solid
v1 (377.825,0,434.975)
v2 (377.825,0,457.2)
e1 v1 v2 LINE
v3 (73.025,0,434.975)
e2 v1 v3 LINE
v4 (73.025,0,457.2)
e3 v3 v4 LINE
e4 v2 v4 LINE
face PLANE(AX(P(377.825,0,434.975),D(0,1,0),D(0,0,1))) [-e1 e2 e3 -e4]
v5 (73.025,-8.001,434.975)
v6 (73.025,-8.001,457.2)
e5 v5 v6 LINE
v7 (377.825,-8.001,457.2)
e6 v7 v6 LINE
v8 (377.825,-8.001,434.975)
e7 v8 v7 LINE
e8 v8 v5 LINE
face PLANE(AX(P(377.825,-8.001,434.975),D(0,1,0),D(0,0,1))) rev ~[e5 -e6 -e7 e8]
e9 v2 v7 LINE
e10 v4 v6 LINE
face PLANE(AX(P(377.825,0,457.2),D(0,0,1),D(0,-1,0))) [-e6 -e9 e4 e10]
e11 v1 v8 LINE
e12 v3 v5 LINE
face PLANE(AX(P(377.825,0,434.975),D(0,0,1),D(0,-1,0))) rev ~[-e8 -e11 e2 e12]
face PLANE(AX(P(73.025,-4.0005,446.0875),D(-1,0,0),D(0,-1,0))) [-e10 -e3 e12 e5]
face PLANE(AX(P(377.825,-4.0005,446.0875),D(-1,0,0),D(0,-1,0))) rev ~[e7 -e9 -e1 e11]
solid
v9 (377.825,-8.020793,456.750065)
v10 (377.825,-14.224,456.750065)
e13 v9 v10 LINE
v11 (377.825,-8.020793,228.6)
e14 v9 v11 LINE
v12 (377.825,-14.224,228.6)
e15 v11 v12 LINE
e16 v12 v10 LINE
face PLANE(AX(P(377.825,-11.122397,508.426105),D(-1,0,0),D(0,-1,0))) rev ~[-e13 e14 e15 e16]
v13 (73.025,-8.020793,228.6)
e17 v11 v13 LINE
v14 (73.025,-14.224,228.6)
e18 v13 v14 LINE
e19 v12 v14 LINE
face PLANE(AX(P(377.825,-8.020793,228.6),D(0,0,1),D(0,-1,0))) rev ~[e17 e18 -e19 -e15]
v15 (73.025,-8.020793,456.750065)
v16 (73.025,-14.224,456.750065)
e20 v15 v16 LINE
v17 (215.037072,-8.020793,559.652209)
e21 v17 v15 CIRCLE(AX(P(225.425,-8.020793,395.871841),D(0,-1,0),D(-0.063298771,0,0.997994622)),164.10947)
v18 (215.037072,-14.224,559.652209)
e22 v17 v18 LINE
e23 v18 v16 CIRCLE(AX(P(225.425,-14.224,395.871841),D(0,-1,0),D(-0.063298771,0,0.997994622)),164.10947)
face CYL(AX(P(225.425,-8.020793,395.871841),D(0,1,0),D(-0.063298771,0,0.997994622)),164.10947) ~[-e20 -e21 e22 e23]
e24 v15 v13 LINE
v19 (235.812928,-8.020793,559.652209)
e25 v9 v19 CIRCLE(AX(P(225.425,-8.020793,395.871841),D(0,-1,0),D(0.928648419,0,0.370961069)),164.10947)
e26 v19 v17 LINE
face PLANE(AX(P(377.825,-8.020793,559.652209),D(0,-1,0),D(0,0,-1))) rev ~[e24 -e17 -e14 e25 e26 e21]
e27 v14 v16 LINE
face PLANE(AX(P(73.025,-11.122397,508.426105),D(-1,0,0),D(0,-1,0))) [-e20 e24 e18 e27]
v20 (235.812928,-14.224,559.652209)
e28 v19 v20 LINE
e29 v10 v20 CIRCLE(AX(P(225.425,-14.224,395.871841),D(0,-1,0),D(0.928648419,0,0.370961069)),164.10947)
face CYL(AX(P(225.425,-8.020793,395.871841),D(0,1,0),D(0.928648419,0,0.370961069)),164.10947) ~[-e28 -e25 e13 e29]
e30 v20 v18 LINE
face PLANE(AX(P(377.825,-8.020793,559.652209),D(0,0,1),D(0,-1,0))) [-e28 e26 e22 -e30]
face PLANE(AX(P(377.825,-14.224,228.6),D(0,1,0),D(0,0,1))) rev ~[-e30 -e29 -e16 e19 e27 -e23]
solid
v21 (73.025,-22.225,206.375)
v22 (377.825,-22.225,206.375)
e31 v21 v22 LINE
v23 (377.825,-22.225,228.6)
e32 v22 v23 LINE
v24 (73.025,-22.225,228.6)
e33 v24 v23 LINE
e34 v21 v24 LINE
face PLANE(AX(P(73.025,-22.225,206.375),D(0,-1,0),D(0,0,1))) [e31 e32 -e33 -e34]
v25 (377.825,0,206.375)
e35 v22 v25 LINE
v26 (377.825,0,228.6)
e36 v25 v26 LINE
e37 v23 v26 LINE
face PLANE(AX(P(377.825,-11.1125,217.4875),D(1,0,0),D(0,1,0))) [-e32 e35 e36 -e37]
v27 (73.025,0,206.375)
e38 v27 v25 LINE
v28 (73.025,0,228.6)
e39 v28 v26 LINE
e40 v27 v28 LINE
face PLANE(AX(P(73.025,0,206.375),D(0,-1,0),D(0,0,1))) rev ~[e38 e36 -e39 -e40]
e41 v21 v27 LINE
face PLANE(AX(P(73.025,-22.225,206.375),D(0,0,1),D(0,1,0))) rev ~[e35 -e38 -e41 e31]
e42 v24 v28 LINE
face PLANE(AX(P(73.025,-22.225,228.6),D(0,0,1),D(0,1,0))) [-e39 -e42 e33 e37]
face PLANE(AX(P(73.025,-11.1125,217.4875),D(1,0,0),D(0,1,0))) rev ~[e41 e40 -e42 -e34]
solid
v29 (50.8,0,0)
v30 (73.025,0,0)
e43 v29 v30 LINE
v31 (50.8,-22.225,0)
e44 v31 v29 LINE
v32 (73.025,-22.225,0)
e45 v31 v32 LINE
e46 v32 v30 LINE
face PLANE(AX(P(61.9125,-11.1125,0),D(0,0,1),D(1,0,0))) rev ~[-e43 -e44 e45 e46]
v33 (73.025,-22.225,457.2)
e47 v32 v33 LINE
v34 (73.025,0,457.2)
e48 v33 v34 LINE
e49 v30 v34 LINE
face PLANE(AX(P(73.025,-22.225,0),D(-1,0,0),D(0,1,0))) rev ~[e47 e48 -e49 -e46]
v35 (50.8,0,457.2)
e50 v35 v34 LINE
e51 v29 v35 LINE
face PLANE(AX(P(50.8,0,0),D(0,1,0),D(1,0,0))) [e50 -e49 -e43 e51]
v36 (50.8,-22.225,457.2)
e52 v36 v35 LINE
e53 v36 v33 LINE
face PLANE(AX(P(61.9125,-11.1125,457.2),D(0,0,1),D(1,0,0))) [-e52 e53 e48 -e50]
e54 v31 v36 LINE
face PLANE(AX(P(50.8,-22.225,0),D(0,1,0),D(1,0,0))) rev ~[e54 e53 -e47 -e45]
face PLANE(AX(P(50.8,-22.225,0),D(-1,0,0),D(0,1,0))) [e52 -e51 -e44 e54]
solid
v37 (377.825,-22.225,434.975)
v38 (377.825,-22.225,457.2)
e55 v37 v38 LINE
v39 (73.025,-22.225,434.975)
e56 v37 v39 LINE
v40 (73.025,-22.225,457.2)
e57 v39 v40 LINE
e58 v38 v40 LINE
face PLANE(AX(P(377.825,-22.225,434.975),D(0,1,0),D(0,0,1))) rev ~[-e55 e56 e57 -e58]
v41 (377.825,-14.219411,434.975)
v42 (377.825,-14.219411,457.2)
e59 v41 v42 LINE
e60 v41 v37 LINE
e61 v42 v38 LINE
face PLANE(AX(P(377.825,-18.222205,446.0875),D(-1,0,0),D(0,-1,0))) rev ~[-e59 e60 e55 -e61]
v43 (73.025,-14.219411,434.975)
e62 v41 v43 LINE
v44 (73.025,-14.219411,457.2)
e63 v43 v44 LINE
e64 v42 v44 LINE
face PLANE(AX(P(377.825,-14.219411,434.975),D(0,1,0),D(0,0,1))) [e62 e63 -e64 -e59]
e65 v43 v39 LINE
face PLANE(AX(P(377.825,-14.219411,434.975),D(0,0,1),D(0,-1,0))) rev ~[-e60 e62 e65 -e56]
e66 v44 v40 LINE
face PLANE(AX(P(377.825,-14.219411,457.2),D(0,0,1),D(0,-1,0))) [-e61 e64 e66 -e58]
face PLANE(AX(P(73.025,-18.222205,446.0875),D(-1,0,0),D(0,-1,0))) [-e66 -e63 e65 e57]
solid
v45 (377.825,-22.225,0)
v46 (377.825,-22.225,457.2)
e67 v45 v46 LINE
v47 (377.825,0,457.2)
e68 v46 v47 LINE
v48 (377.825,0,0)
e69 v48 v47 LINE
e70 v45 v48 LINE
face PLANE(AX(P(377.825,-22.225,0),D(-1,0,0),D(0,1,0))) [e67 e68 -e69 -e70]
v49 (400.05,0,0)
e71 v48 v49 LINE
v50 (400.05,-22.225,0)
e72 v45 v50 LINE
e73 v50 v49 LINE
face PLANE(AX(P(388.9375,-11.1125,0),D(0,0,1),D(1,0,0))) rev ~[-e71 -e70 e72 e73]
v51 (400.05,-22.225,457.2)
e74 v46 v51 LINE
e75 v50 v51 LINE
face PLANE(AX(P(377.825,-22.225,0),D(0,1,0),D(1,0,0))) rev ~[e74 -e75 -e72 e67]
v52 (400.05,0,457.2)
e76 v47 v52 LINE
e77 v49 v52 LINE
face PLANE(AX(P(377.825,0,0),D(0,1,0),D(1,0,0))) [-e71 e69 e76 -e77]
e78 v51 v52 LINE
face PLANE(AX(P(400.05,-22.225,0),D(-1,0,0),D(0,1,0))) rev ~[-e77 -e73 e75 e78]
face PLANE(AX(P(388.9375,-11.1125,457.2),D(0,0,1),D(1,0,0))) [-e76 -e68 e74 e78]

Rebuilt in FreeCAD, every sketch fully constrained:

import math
import FreeCAD as App
import Part
import Sketcher
Q = App.Units.Quantity

doc = App.newDocument("Part")
params = doc.addObject("Spreadsheet::Sheet", "Params")
for row, (alias, value) in enumerate([
    ("sketch1_width", "0.875 in"),
    ("pad1_length", "18 in"),
    ("sketch2_width", "0.875 in"),
    ("pad2_length", "18 in"),
    ("sketch3_width", "0.875 in"),
    ("pad3_length", "12 in"),
    ("pad4_length", "12 in"),
    ("sketch6_height", "0.875 in"),
    ("pad5_length", "12 in"),
    ("sketch7_width", "0.315 in"),
    ("sketch7_height", "0.875 in"),
    ("pad6_length", "12 in"),
], start=1):
    params.set(f"A{row}", alias)
    params.set(f"B{row}", "=" + value)
    params.setAlias(f"B{row}", alias)

body = doc.addObject("PartDesign::Body", "Body")

sketch1 = body.newObject("Sketcher::SketchObject", "Sketch")
sketch1.AttachmentSupport = (doc.getObject("XY_Plane"), [""])
sketch1.MapMode = "FlatFace"
sketch1.addGeometry(Part.LineSegment(App.Vector(51, 0, 0), App.Vector(51, -22, 0)), False)
sketch1.addGeometry(Part.LineSegment(App.Vector(51, -22, 0), App.Vector(73, -22, 0)), False)
sketch1.addGeometry(Part.LineSegment(App.Vector(73, -22, 0), App.Vector(73, 0, 0)), False)
sketch1.addGeometry(Part.LineSegment(App.Vector(73, 0, 0), App.Vector(51, 0, 0)), False)
sketch1.addConstraint(Sketcher.Constraint("Coincident", 0, 2, 1, 1))
sketch1.addConstraint(Sketcher.Constraint("Coincident", 1, 2, 2, 1))
sketch1.addConstraint(Sketcher.Constraint("Coincident", 2, 2, 3, 1))
sketch1.addConstraint(Sketcher.Constraint("Coincident", 3, 2, 0, 1))
sketch1.addConstraint(Sketcher.Constraint("Vertical", 0))
sketch1.addConstraint(Sketcher.Constraint("Horizontal", 1))
sketch1.addConstraint(Sketcher.Constraint("Vertical", 2))
sketch1.addConstraint(Sketcher.Constraint("Horizontal", 3))
sketch1.addConstraint(Sketcher.Constraint("PointOnObject", 2, 2, -1))
sketch1.addConstraint(Sketcher.Constraint("Equal", 3, 0))
sketch1.addConstraint(Sketcher.Constraint("DistanceX", -1, 1, 0, 2, Q("2 in")))
sketch1.addConstraint(Sketcher.Constraint("DistanceX", 1, 1, 1, 2, Q("0.875 in")))
sketch1.setExpression("Constraints[11]", "Params.sketch1_width")
pad1 = body.newObject("PartDesign::Pad", "Pad")
pad1.Profile = sketch1
pad1.setExpression("Length", "Params.pad1_length")
body2 = doc.addObject("PartDesign::Body", "Body001")

sketch2 = body2.newObject("Sketcher::SketchObject", "Sketch001")
sketch2.AttachmentSupport = (doc.getObject("XY_Plane001"), [""])
sketch2.MapMode = "FlatFace"
sketch2.addGeometry(Part.LineSegment(App.Vector(378, 0, 0), App.Vector(378, -22, 0)), False)
sketch2.addGeometry(Part.LineSegment(App.Vector(378, -22, 0), App.Vector(400, -22, 0)), False)
sketch2.addGeometry(Part.LineSegment(App.Vector(400, -22, 0), App.Vector(400, 0, 0)), False)
sketch2.addGeometry(Part.LineSegment(App.Vector(400, 0, 0), App.Vector(378, 0, 0)), False)
sketch2.addConstraint(Sketcher.Constraint("Coincident", 0, 2, 1, 1))
sketch2.addConstraint(Sketcher.Constraint("Coincident", 1, 2, 2, 1))
sketch2.addConstraint(Sketcher.Constraint("Coincident", 2, 2, 3, 1))
sketch2.addConstraint(Sketcher.Constraint("Coincident", 3, 2, 0, 1))
sketch2.addConstraint(Sketcher.Constraint("Vertical", 0))
sketch2.addConstraint(Sketcher.Constraint("Horizontal", 1))
sketch2.addConstraint(Sketcher.Constraint("Vertical", 2))
sketch2.addConstraint(Sketcher.Constraint("Horizontal", 3))
sketch2.addConstraint(Sketcher.Constraint("PointOnObject", 2, 2, -1))
sketch2.addConstraint(Sketcher.Constraint("Equal", 3, 0))
sketch2.addConstraint(Sketcher.Constraint("DistanceX", 1, 1, 1, 2, Q("0.875 in")))
sketch2.addConstraint(Sketcher.Constraint("DistanceX", -1, 1, 1, 2, Q("15.75 in")))
sketch2.setExpression("Constraints[10]", "Params.sketch2_width")
pad2 = body2.newObject("PartDesign::Pad", "Pad001")
pad2.Profile = sketch2
pad2.setExpression("Length", "Params.pad2_length")
body3 = doc.addObject("PartDesign::Body", "Body002")

sketch3 = body3.newObject("Sketcher::SketchObject", "Sketch002")
sketch3.AttachmentSupport = (doc.getObject("YZ_Plane002"), [""])
sketch3.MapMode = "FlatFace"
sketch3.AttachmentOffset = App.Placement(App.Vector(0, 0, 2.875 * 25.4), App.Rotation())
sketch3.addGeometry(Part.LineSegment(App.Vector(-22, 229, 0), App.Vector(-22, 206, 0)), False)
sketch3.addGeometry(Part.LineSegment(App.Vector(-22, 206, 0), App.Vector(0, 206, 0)), False)
sketch3.addGeometry(Part.LineSegment(App.Vector(0, 206, 0), App.Vector(0, 229, 0)), False)
sketch3.addGeometry(Part.LineSegment(App.Vector(0, 229, 0), App.Vector(-22, 229, 0)), False)
sketch3.addConstraint(Sketcher.Constraint("Coincident", 0, 2, 1, 1))
sketch3.addConstraint(Sketcher.Constraint("Coincident", 1, 2, 2, 1))
sketch3.addConstraint(Sketcher.Constraint("Coincident", 2, 2, 3, 1))
sketch3.addConstraint(Sketcher.Constraint("Coincident", 3, 2, 0, 1))
sketch3.addConstraint(Sketcher.Constraint("Vertical", 0))
sketch3.addConstraint(Sketcher.Constraint("Horizontal", 1))
sketch3.addConstraint(Sketcher.Constraint("Vertical", 2))
sketch3.addConstraint(Sketcher.Constraint("Horizontal", 3))
sketch3.addConstraint(Sketcher.Constraint("PointOnObject", 1, 2, -2))
sketch3.addConstraint(Sketcher.Constraint("Equal", 3, 0))
sketch3.addConstraint(Sketcher.Constraint("DistanceY", -1, 1, 2, 2, Q("9 in")))
sketch3.addConstraint(Sketcher.Constraint("DistanceX", 1, 1, 1, 2, Q("0.875 in")))
sketch3.setExpression("Constraints[11]", "Params.sketch3_width")
pad3 = body3.newObject("PartDesign::Pad", "Pad002")
pad3.Profile = sketch3
pad3.setExpression("Length", "Params.pad3_length")
body4 = doc.addObject("PartDesign::Body", "Body003")

sketch4 = body4.newObject("Sketcher::SketchObject", "Sketch003")
sketch4.AttachmentSupport = (doc.getObject("YZ_Plane003"), [""])
sketch4.MapMode = "FlatFace"
sketch4.AttachmentOffset = App.Placement(App.Vector(0, 0, 14.875 * 25.4), App.Rotation())
sketch4.addGeometry(Part.LineSegment(App.Vector(-8, 560, 0), App.Vector(-8, 229, 0)), False)
sketch4.addGeometry(Part.LineSegment(App.Vector(-8, 229, 0), App.Vector(-14, 229, 0)), False)
sketch4.addGeometry(Part.LineSegment(App.Vector(-14, 229, 0), App.Vector(-14, 560, 0)), False)
sketch4.addGeometry(Part.LineSegment(App.Vector(-14, 560, 0), App.Vector(-8, 560, 0)), False)
sketch4.addConstraint(Sketcher.Constraint("Coincident", 0, 2, 1, 1))
sketch4.addConstraint(Sketcher.Constraint("Coincident", 1, 2, 2, 1))
sketch4.addConstraint(Sketcher.Constraint("Coincident", 2, 2, 3, 1))
sketch4.addConstraint(Sketcher.Constraint("Coincident", 3, 2, 0, 1))
sketch4.addConstraint(Sketcher.Constraint("Vertical", 0))
sketch4.addConstraint(Sketcher.Constraint("Horizontal", 1))
sketch4.addConstraint(Sketcher.Constraint("Vertical", 2))
sketch4.addConstraint(Sketcher.Constraint("Horizontal", 3))
sketch4.addConstraint(Sketcher.Constraint("DistanceY", -1, 1, 0, 2, Q("9 in")))
sketch4.addConstraint(Sketcher.Constraint("DistanceX", 1, 2, -1, 1, Q("0.56 in")))
sketch4.addConstraint(Sketcher.Constraint("DistanceY", 0, 2, 0, 1, 331.052209))
sketch4.addConstraint(Sketcher.Constraint("DistanceX", 1, 2, 1, 1, 6.203207))
pad4 = body4.newObject("PartDesign::Pad", "Pad003")
pad4.Profile = sketch4
pad4.setExpression("Length", "Params.pad4_length")
pad4.Reversed = True

sketch5 = body4.newObject("Sketcher::SketchObject", "Sketch004")
sketch5.AttachmentSupport = (doc.getObject("XZ_Plane003"), [""])
sketch5.MapMode = "FlatFace"
sketch5.AttachmentOffset = App.Placement(App.Vector(0, 0, 8.020793), App.Rotation())
sketch5.addGeometry(Part.ArcOfCircle(Part.Circle(App.Vector(225, 396, 0), App.Vector(0, 0, 1), 164), math.radians(22), math.radians(86)), False)
sketch5.addGeometry(Part.LineSegment(App.Vector(236, 560, 0), App.Vector(378, 560, 0)), False)
sketch5.addGeometry(Part.LineSegment(App.Vector(378, 560, 0), App.Vector(378, 457, 0)), False)
sketch5.addGeometry(Part.ArcOfCircle(Part.Circle(App.Vector(225, 396, 0), App.Vector(0, 0, 1), 164), math.radians(94), math.radians(158)), False)
sketch5.addGeometry(Part.LineSegment(App.Vector(73, 457, 0), App.Vector(73, 560, 0)), False)
sketch5.addGeometry(Part.LineSegment(App.Vector(73, 560, 0), App.Vector(215, 560, 0)), False)
sketch5.addConstraint(Sketcher.Constraint("Coincident", 0, 2, 1, 1))
sketch5.addConstraint(Sketcher.Constraint("Coincident", 1, 2, 2, 1))
sketch5.addConstraint(Sketcher.Constraint("Coincident", 2, 2, 0, 1))
sketch5.addConstraint(Sketcher.Constraint("Coincident", 3, 2, 4, 1))
sketch5.addConstraint(Sketcher.Constraint("Coincident", 4, 2, 5, 1))
sketch5.addConstraint(Sketcher.Constraint("Coincident", 5, 2, 3, 1))
sketch5.addConstraint(Sketcher.Constraint("Horizontal", 1))
sketch5.addConstraint(Sketcher.Constraint("Vertical", 2))
sketch5.addConstraint(Sketcher.Constraint("Vertical", 4))
sketch5.addConstraint(Sketcher.Constraint("Horizontal", 5))
sketch5.addConstraint(Sketcher.Constraint("Coincident", 3, 3, 0, 3))
sketch5.addConstraint(Sketcher.Constraint("Equal", 0, 3))
sketch5.addConstraint(Sketcher.Constraint("Horizontal", 2, 2, 3, 2))
sketch5.addConstraint(Sketcher.Constraint("Horizontal", 1, 2, 4, 2))
sketch5.addConstraint(Sketcher.Constraint("DistanceX", 0, 3, 1, 2, Q("6 in")))
sketch5.addConstraint(Sketcher.Constraint("DistanceX", -1, 1, 0, 3, Q("8.875 in")))
sketch5.addConstraint(Sketcher.Constraint("Radius", 0, 164.10947))
sketch5.addConstraint(Sketcher.Constraint("DistanceX", 1, 1, 1, 2, 142.012072))
sketch5.addConstraint(Sketcher.Constraint("DistanceY", -1, 1, 0, 3, 395.871841))
pocket1 = body4.newObject("PartDesign::Pocket", "Pocket")
pocket1.Profile = sketch5
pocket1.Type = "ThroughAll"
pocket1.Reversed = True
body5 = doc.addObject("PartDesign::Body", "Body004")

sketch6 = body5.newObject("Sketcher::SketchObject", "Sketch005")
sketch6.AttachmentSupport = (doc.getObject("YZ_Plane004"), [""])
sketch6.MapMode = "FlatFace"
sketch6.AttachmentOffset = App.Placement(App.Vector(0, 0, 14.875 * 25.4), App.Rotation())
sketch6.addGeometry(Part.LineSegment(App.Vector(-14, 457, 0), App.Vector(-14, 435, 0)), False)
sketch6.addGeometry(Part.LineSegment(App.Vector(-14, 435, 0), App.Vector(-22, 435, 0)), False)
sketch6.addGeometry(Part.LineSegment(App.Vector(-22, 435, 0), App.Vector(-22, 457, 0)), False)
sketch6.addGeometry(Part.LineSegment(App.Vector(-22, 457, 0), App.Vector(-14, 457, 0)), False)
sketch6.addConstraint(Sketcher.Constraint("Coincident", 0, 2, 1, 1))
sketch6.addConstraint(Sketcher.Constraint("Coincident", 1, 2, 2, 1))
sketch6.addConstraint(Sketcher.Constraint("Coincident", 2, 2, 3, 1))
sketch6.addConstraint(Sketcher.Constraint("Coincident", 3, 2, 0, 1))
sketch6.addConstraint(Sketcher.Constraint("Vertical", 0))
sketch6.addConstraint(Sketcher.Constraint("Horizontal", 1))
sketch6.addConstraint(Sketcher.Constraint("Vertical", 2))
sketch6.addConstraint(Sketcher.Constraint("Horizontal", 3))
sketch6.addConstraint(Sketcher.Constraint("DistanceY", -1, 1, 2, 2, Q("18 in")))
sketch6.addConstraint(Sketcher.Constraint("DistanceY", 0, 2, 0, 1, Q("0.875 in")))
sketch6.addConstraint(Sketcher.Constraint("DistanceX", 1, 2, -1, 1, Q("0.875 in")))
sketch6.addConstraint(Sketcher.Constraint("DistanceX", 1, 2, 1, 1, 8.005589))
sketch6.setExpression("Constraints[9]", "Params.sketch6_height")
pad5 = body5.newObject("PartDesign::Pad", "Pad004")
pad5.Profile = sketch6
pad5.setExpression("Length", "Params.pad5_length")
pad5.Reversed = True
body6 = doc.addObject("PartDesign::Body", "Body005")

sketch7 = body6.newObject("Sketcher::SketchObject", "Sketch006")
sketch7.AttachmentSupport = (doc.getObject("YZ_Plane005"), [""])
sketch7.MapMode = "FlatFace"
sketch7.AttachmentOffset = App.Placement(App.Vector(0, 0, 14.875 * 25.4), App.Rotation())
sketch7.addGeometry(Part.LineSegment(App.Vector(0, 457, 0), App.Vector(0, 435, 0)), False)
sketch7.addGeometry(Part.LineSegment(App.Vector(0, 435, 0), App.Vector(-8, 435, 0)), False)
sketch7.addGeometry(Part.LineSegment(App.Vector(-8, 435, 0), App.Vector(-8, 457, 0)), False)
sketch7.addGeometry(Part.LineSegment(App.Vector(-8, 457, 0), App.Vector(0, 457, 0)), False)
sketch7.addConstraint(Sketcher.Constraint("Coincident", 0, 2, 1, 1))
sketch7.addConstraint(Sketcher.Constraint("Coincident", 1, 2, 2, 1))
sketch7.addConstraint(Sketcher.Constraint("Coincident", 2, 2, 3, 1))
sketch7.addConstraint(Sketcher.Constraint("Coincident", 3, 2, 0, 1))
sketch7.addConstraint(Sketcher.Constraint("Vertical", 0))
sketch7.addConstraint(Sketcher.Constraint("Horizontal", 1))
sketch7.addConstraint(Sketcher.Constraint("Vertical", 2))
sketch7.addConstraint(Sketcher.Constraint("Horizontal", 3))
sketch7.addConstraint(Sketcher.Constraint("PointOnObject", 0, 2, -2))
sketch7.addConstraint(Sketcher.Constraint("DistanceY", -1, 1, 2, 2, Q("18 in")))
sketch7.addConstraint(Sketcher.Constraint("DistanceX", 1, 2, 1, 1, Q("0.315 in")))
sketch7.addConstraint(Sketcher.Constraint("DistanceY", 0, 2, 0, 1, Q("0.875 in")))
sketch7.setExpression("Constraints[10]", "Params.sketch7_width")
sketch7.setExpression("Constraints[11]", "Params.sketch7_height")
pad6 = body6.newObject("PartDesign::Pad", "Pad005")
pad6.Profile = sketch7
pad6.setExpression("Length", "Params.pad6_length")
pad6.Reversed = True

doc.recompute()
